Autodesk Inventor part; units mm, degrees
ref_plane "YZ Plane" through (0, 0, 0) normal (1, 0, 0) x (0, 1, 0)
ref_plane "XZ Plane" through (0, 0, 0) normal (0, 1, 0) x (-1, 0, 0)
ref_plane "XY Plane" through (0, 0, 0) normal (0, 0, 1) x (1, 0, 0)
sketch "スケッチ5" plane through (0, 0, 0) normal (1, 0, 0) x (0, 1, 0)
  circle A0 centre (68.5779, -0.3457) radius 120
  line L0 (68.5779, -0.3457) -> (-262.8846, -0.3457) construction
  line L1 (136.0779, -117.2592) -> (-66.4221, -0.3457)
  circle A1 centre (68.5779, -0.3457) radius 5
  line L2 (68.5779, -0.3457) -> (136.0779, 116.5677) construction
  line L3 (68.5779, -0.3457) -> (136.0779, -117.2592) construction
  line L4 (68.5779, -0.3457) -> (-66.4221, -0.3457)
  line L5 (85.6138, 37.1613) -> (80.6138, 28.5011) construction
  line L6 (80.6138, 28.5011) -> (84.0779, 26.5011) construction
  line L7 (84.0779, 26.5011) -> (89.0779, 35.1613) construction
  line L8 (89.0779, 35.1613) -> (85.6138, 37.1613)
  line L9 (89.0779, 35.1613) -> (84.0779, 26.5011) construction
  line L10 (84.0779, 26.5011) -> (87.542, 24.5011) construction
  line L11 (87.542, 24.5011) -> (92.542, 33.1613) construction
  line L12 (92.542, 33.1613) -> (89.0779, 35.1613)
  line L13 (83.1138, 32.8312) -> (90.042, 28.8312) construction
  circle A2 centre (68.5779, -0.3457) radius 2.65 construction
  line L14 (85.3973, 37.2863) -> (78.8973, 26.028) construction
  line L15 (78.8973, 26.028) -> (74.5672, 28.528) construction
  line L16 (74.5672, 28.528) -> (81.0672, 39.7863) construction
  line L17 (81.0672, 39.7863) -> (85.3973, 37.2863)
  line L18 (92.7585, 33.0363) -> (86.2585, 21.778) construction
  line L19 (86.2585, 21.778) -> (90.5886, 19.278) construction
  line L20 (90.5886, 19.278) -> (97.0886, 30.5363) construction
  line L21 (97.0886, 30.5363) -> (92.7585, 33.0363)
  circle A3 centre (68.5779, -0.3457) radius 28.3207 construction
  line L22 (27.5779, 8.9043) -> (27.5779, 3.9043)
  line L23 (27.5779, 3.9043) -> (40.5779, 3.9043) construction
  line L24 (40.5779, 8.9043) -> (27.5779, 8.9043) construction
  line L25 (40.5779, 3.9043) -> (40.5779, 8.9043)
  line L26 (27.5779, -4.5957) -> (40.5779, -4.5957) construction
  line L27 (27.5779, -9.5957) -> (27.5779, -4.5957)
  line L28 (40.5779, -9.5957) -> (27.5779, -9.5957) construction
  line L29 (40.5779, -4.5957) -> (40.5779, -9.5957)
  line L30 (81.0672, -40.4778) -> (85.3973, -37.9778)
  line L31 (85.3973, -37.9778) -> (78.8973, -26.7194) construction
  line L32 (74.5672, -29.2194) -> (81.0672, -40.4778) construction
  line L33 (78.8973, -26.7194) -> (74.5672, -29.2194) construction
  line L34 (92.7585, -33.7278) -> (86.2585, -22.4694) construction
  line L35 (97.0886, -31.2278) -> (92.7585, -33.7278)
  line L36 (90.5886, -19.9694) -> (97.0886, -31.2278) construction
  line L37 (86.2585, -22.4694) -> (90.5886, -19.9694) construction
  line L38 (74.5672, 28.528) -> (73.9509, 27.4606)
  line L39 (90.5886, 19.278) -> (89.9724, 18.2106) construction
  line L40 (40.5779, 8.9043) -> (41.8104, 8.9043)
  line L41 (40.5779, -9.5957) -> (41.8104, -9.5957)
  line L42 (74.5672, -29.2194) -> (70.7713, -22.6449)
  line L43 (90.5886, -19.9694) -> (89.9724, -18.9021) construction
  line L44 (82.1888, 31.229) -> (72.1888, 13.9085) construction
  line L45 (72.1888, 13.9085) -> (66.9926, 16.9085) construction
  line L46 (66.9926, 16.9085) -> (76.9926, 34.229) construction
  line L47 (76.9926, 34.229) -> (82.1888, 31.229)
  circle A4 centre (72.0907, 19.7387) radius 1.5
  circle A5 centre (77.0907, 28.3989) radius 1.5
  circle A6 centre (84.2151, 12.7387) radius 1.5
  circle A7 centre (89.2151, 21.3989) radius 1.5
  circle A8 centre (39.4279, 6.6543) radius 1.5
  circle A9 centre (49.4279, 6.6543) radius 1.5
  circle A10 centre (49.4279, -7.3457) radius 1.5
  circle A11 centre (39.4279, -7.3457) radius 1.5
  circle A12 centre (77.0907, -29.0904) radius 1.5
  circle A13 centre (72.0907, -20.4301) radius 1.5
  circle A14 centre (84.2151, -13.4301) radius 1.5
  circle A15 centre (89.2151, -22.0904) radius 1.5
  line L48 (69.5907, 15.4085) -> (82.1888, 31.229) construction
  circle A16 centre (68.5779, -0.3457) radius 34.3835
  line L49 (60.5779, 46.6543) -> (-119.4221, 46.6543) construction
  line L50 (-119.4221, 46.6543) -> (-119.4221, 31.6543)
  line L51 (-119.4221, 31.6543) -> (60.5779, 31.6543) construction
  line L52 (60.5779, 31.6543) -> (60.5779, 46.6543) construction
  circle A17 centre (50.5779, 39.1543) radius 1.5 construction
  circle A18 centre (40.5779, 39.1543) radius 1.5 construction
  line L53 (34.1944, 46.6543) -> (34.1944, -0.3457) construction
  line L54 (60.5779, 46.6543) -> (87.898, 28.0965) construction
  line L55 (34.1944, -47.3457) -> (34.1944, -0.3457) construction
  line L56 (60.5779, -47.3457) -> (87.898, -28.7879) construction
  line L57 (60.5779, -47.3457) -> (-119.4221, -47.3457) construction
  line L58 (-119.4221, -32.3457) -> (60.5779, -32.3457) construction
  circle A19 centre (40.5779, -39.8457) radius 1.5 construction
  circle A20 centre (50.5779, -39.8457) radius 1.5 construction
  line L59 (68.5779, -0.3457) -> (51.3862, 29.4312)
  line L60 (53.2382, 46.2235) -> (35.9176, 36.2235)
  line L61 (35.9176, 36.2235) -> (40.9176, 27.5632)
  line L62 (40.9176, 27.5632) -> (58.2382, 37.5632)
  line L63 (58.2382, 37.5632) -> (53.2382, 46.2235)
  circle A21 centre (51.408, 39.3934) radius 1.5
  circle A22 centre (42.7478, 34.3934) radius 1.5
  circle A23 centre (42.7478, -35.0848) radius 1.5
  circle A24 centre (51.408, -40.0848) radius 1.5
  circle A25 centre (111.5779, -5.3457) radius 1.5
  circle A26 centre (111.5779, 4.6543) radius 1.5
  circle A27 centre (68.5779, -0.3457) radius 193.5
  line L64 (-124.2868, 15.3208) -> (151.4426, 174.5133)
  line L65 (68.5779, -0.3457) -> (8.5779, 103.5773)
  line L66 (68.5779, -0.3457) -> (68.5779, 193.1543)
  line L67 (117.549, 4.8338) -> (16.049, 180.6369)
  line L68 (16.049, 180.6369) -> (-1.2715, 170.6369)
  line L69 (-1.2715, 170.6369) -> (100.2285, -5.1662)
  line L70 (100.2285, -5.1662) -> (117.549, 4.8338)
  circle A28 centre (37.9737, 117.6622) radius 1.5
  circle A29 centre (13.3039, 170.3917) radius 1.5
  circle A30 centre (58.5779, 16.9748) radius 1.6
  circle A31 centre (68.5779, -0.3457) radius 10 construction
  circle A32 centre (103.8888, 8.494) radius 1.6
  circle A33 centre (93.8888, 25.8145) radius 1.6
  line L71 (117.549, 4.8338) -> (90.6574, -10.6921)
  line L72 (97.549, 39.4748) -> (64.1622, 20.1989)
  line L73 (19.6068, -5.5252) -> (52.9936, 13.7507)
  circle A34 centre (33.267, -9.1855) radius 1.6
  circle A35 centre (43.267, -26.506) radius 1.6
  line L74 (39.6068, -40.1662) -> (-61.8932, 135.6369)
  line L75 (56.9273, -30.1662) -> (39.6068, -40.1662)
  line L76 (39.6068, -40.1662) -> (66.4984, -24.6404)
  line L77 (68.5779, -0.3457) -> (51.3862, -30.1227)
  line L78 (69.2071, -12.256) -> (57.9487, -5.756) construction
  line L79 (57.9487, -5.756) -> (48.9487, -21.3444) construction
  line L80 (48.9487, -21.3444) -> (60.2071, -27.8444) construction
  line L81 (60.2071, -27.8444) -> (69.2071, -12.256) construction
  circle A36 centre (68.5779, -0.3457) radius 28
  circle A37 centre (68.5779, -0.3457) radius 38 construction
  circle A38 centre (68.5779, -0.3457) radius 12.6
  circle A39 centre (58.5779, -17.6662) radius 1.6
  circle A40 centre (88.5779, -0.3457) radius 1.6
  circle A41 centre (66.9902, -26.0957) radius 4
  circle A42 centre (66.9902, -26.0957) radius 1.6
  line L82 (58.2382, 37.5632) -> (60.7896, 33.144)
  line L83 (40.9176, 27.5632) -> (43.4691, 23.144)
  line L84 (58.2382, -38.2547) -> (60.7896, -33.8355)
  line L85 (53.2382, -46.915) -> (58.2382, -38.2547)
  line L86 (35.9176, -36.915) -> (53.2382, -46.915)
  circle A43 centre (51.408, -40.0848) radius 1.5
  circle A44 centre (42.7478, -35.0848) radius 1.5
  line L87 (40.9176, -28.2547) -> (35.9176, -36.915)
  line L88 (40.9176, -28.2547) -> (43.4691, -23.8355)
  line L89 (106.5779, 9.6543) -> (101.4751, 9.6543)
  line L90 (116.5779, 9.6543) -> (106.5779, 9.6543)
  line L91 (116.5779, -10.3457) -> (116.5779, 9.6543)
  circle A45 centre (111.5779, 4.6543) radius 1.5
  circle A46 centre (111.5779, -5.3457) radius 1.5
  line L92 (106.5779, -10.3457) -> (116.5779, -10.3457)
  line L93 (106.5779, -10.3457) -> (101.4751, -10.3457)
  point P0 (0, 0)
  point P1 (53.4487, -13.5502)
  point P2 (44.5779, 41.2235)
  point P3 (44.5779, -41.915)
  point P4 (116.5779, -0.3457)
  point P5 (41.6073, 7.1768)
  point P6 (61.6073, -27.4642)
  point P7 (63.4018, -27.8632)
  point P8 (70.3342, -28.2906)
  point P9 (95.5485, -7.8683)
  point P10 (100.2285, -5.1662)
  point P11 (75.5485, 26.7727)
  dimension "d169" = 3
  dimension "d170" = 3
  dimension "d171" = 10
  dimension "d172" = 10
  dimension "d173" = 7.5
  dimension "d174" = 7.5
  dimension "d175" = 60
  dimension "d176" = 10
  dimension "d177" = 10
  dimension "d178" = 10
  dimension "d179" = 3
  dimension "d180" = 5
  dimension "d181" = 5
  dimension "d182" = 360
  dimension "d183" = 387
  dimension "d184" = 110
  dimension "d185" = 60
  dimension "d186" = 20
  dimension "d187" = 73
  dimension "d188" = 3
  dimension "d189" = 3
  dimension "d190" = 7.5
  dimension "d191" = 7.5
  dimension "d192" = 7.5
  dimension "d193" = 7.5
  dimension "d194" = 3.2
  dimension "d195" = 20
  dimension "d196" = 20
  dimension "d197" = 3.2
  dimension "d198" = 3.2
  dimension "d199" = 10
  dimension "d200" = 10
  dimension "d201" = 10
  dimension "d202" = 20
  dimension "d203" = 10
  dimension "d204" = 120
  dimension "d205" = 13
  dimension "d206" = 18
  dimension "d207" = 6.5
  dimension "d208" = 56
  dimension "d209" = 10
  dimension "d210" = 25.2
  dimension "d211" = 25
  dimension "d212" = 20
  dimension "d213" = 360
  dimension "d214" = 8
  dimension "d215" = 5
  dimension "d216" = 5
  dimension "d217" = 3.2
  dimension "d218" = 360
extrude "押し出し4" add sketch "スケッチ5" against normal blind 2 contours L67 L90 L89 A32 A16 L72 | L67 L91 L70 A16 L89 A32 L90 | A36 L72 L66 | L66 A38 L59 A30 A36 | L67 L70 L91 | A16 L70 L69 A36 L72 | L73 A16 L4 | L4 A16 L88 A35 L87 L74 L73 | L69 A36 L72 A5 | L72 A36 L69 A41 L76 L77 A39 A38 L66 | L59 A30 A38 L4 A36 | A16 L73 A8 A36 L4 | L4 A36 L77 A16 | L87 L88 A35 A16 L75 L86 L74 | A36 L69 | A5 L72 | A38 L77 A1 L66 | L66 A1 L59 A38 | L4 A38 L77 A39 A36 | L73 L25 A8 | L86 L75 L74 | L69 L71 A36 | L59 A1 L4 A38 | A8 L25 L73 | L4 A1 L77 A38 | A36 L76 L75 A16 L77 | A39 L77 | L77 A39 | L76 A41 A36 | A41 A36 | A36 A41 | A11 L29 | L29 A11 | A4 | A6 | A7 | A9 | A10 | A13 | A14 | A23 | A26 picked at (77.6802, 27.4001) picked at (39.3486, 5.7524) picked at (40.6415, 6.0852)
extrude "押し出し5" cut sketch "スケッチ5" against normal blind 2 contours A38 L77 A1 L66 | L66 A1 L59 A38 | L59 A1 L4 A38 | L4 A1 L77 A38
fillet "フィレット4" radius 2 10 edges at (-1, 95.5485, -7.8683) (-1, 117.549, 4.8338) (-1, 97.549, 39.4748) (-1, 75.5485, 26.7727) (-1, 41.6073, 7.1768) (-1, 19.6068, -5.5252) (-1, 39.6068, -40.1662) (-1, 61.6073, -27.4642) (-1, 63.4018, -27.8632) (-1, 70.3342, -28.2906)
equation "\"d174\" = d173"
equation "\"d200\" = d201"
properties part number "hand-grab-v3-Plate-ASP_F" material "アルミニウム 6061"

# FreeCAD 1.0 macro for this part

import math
import FreeCAD as App
import Part
import Sketcher

V = App.Vector
Q = App.Units.Quantity


def edges_at(feature, points):
    """Names of the edges that pass closest to the given points."""
    edges = feature.Shape.Edges
    near = lambda p: min(range(len(edges)), key=lambda i: edges[i].distToShape(Part.Vertex(*p))[0])
    return sorted({f"Edge{near(p) + 1}" for p in points})

doc = App.newDocument("Part")
params = doc.addObject("Spreadsheet::Sheet", "Params")
for row, (alias, value) in enumerate([
    ("sketch1_diameter", "10 mm"),
    ("sketch1_radius", "28 mm"),
    ("sketch1_radius2", "4 mm"),
    ("sketch1_diameter2", "3.2 mm"),
    ("sketch1_length", "20 mm"),
    ("pad1_length", "2 mm"),
    ("sketch2_diameter", "10 mm"),
    ("sketch2_diameter2", "25.2 mm"),
    ("pocket1_length", "2 mm"),
    ("fillet_radius", "2 mm"),
], start=1):
    params.set(f"A{row}", alias)
    params.set(f"B{row}", "=" + value)
    params.setAlias(f"B{row}", alias)

body = doc.addObject("PartDesign::Body", "Body")

sketch1 = doc.addObject("Sketcher::SketchObject", "Sketch")
body.addObject(sketch1)
sketch1.AttachmentSupport = (doc.YZ_Plane, [""])
sketch1.MapMode = "FlatFace"
sketch1.addGeometry(Part.LineSegment(V(97.5, 39.5, 0), V(75.5, 26.8, 0)), False)
sketch1.addGeometry(Part.ArcOfCircle(Part.Circle(V(68.6, -0.3, 0), V(0, 0, 1), 28), math.radians(76), math.radians(164)), False)
sketch1.addGeometry(Part.LineSegment(V(41.6, 7.2, 0), V(19.6, -5.5, 0)), False)
sketch1.addGeometry(Part.LineSegment(V(19.6, -5.5, 0), V(39.6, -40.2, 0)), False)
sketch1.addGeometry(Part.LineSegment(V(39.6, -40.2, 0), V(56.9, -30.2, 0)), False)
sketch1.addGeometry(Part.LineSegment(V(56.9, -30.2, 0), V(61.6, -27.5, 0)), False)
sketch1.addGeometry(Part.ArcOfCircle(Part.Circle(V(68.6, -0.3, 0), V(0, 0, 1), 28), math.radians(-104.42), math.radians(-100.65)), False)
sketch1.addGeometry(Part.ArcOfCircle(Part.Circle(V(67, -26.1, 0), V(0, 0, 1), 4), math.radians(-154), math.radians(-33)), False)
sketch1.addGeometry(Part.ArcOfCircle(Part.Circle(V(68.6, -0.3, 0), V(0, 0, 1), 28), math.radians(-86), math.radians(-16)), False)
sketch1.addGeometry(Part.LineSegment(V(95.5, -7.9, 0), V(100.2, -5.2, 0)), False)
sketch1.addGeometry(Part.LineSegment(V(100.2, -5.2, 0), V(117.5, 4.8, 0)), False)
sketch1.addGeometry(Part.LineSegment(V(117.5, 4.8, 0), V(97.5, 39.5, 0)), False)
sketch1.addGeometry(Part.Circle(V(103.9, 8.5, 0), V(0, 0, 1), 1.6), False)
sketch1.addGeometry(Part.Circle(V(93.9, 25.8, 0), V(0, 0, 1), 1.6), False)
sketch1.addGeometry(Part.Circle(V(88.6, -0.3, 0), V(0, 0, 1), 1.6), False)
sketch1.addGeometry(Part.Circle(V(67, -26.1, 0), V(0, 0, 1), 1.6), False)
sketch1.addGeometry(Part.Circle(V(68.6, -0.3, 0), V(0, 0, 1), 5), False)
sketch1.addGeometry(Part.Circle(V(58.6, 17, 0), V(0, 0, 1), 1.6), False)
sketch1.addGeometry(Part.Circle(V(43.3, -26.5, 0), V(0, 0, 1), 1.6), False)
sketch1.addGeometry(Part.Circle(V(33.3, -9.2, 0), V(0, 0, 1), 1.6), False)
sketch1.addConstraint(Sketcher.Constraint("Coincident", 0, 2, 1, 1))
sketch1.addConstraint(Sketcher.Constraint("Coincident", 1, 2, 2, 1))
sketch1.addConstraint(Sketcher.Constraint("Coincident", 2, 2, 3, 1))
sketch1.addConstraint(Sketcher.Constraint("Coincident", 3, 2, 4, 1))
sketch1.addConstraint(Sketcher.Constraint("Coincident", 4, 2, 5, 1))
sketch1.addConstraint(Sketcher.Constraint("Coincident", 5, 2, 6, 1))
sketch1.addConstraint(Sketcher.Constraint("Coincident", 6, 2, 7, 1))
sketch1.addConstraint(Sketcher.Constraint("Coincident", 7, 2, 8, 1))
sketch1.addConstraint(Sketcher.Constraint("Coincident", 8, 2, 9, 1))
sketch1.addConstraint(Sketcher.Constraint("Coincident", 9, 2, 10, 1))
sketch1.addConstraint(Sketcher.Constraint("Coincident", 10, 2, 11, 1))
sketch1.addConstraint(Sketcher.Constraint("Coincident", 11, 2, 0, 1))
sketch1.addConstraint(Sketcher.Constraint("Coincident", 6, 3, 1, 3))
sketch1.addConstraint(Sketcher.Constraint("Coincident", 8, 3, 1, 3))
sketch1.addConstraint(Sketcher.Constraint("Coincident", 15, 3, 7, 3))
sketch1.addConstraint(Sketcher.Constraint("Coincident", 16, 3, 1, 3))
sketch1.addConstraint(Sketcher.Constraint("Equal", 1, 6))
sketch1.addConstraint(Sketcher.Constraint("Equal", 6, 8))
sketch1.addConstraint(Sketcher.Constraint("Equal", 12, 13))
sketch1.addConstraint(Sketcher.Constraint("Equal", 13, 14))
sketch1.addConstraint(Sketcher.Constraint("Equal", 14, 15))
sketch1.addConstraint(Sketcher.Constraint("Equal", 15, 17))
sketch1.addConstraint(Sketcher.Constraint("Equal", 17, 18))
sketch1.addConstraint(Sketcher.Constraint("Equal", 18, 19))
sketch1.addConstraint(Sketcher.Constraint("Parallel", 0, 2))
sketch1.addConstraint(Sketcher.Constraint("Perpendicular", 2, 3))
sketch1.addConstraint(Sketcher.Constraint("Perpendicular", 3, 4))
sketch1.addConstraint(Sketcher.Constraint("Parallel", 4, 5))
sketch1.addConstraint(Sketcher.Constraint("Parallel", 5, 9))
sketch1.addConstraint(Sketcher.Constraint("Parallel", 9, 10))
sketch1.addConstraint(Sketcher.Constraint("Perpendicular", 10, 11))
sketch1.addConstraint(Sketcher.Constraint("Horizontal", 8, 3, 14, 3))
sketch1.addConstraint(Sketcher.Constraint("Equal", 0, 2))
sketch1.addConstraint(Sketcher.Constraint("Equal", 5, 9))
sketch1.addConstraint(Sketcher.Constraint("Equal", 4, 10))
sketch1.addConstraint(Sketcher.Constraint("Equal", 3, 11))
sketch1.addConstraint(Sketcher.Constraint("Diameter", 16, 10.0))
sketch1.addConstraint(Sketcher.Constraint("Radius", 1, 28.0))
sketch1.addConstraint(Sketcher.Constraint("Radius", 7, 4.0))
sketch1.addConstraint(Sketcher.Constraint("Diameter", 12, 3.2))
sketch1.addConstraint(Sketcher.Constraint("Angle", 3, Q("-60 deg")))
sketch1.addConstraint(Sketcher.Constraint("Distance", 4, 20.0))
sketch1.addConstraint(Sketcher.Constraint("DistanceX", 13, 3, 12, 3, 10.0))
sketch1.addConstraint(Sketcher.Constraint("DistanceX", 1, 3, 14, 3, 20.0))
sketch1.addConstraint(Sketcher.Constraint("DistanceX", 17, 3, 1, 3, 10.0))
sketch1.addConstraint(Sketcher.Constraint("DistanceX", 19, 3, 18, 3, 10.0))
sketch1.addConstraint(Sketcher.Constraint("DistanceX", 2, 2, 3, 2, 20.0))
sketch1.addConstraint(Sketcher.Constraint("DistanceY", 2, 2, 17, 3, 22.5))
sketch1.addConstraint(Sketcher.Constraint("DistanceY", 7, 3, 1, 3, 25.75))
sketch1.addConstraint(Sketcher.Constraint("DistanceX", 8, 2, 9, 2, 4.68))
sketch1.addConstraint(Sketcher.Constraint("Distance", 0, 25.404))
sketch1.addConstraint(Sketcher.Constraint("DistanceX", -1, 1, 1, 3, 68.578))
sketch1.addConstraint(Sketcher.Constraint("DistanceY", -1, 1, 12, 3, 8.494))
sketch1.addConstraint(Sketcher.Constraint("DistanceX", -1, 1, 18, 3, 43.267))
sketch1.addConstraint(Sketcher.Constraint("DistanceY", 18, 3, -1, 1, 26.506))
sketch1.addConstraint(Sketcher.Constraint("DistanceX", 1, 3, 12, 3, 35.311))
sketch1.addConstraint(Sketcher.Constraint("DistanceX", 4, 2, 7, 3, 10.063))
sketch1.addConstraint(Sketcher.Constraint("DistanceY", 1, 3, -1, 1, 0.3457))
sketch1.addConstraint(Sketcher.Constraint("DistanceY", -1, 1, 13, 3, 25.8145))
sketch1.addConstraint(Sketcher.Constraint("DistanceY", 19, 3, -1, 1, 9.1855))
sketch1.setExpression("Constraints[36]", "Params.sketch1_diameter")
sketch1.setExpression("Constraints[37]", "Params.sketch1_radius")
sketch1.setExpression("Constraints[38]", "Params.sketch1_radius2")
sketch1.setExpression("Constraints[39]", "Params.sketch1_diameter2")
sketch1.setExpression("Constraints[41]", "Params.sketch1_length")
pad1 = doc.addObject("PartDesign::Pad", "Pad")
body.addObject(pad1)
pad1.Profile = sketch1
pad1.setExpression("Length", "Params.pad1_length")
pad1.Reversed = True

sketch2 = doc.addObject("Sketcher::SketchObject", "Sketch001")
body.addObject(sketch2)
sketch2.AttachmentSupport = (doc.YZ_Plane, [""])
sketch2.MapMode = "FlatFace"
sketch2.addGeometry(Part.Circle(V(69, 0, 0), V(0, 0, 1), 13), False)
sketch2.addGeometry(Part.Circle(V(69, 0, 0), V(0, 0, 1), 5), False)
sketch2.addConstraint(Sketcher.Constraint("Coincident", 1, 3, 0, 3))
sketch2.addConstraint(Sketcher.Constraint("Diameter", 1, 10.0))
sketch2.addConstraint(Sketcher.Constraint("Diameter", 0, 25.2))
sketch2.addConstraint(Sketcher.Constraint("DistanceX", -1, 1, 0, 3, 68.578))
sketch2.addConstraint(Sketcher.Constraint("DistanceY", 0, 3, -1, 1, 0.3457))
sketch2.setExpression("Constraints[1]", "Params.sketch2_diameter")
sketch2.setExpression("Constraints[2]", "Params.sketch2_diameter2")
pocket1 = doc.addObject("PartDesign::Pocket", "Pocket")
body.addObject(pocket1)
pocket1.Profile = sketch2
pocket1.setExpression("Length", "Params.pocket1_length")
doc.recompute()

fillet = doc.addObject("PartDesign::Fillet", "Fillet")
body.addObject(fillet)
fillet.Base = (pocket1, edges_at(pocket1, [
    (-1, 95.549, -7.868),
    (-1, 117.549, 4.834),
    (-1, 97.549, 39.475),
    (-1, 75.549, 26.773),
    (-1, 41.607, 7.177),
    (-1, 19.607, -5.525),
    (-1, 39.607, -40.166),
    (-1, 61.607, -27.464),
    (-1, 63.402, -27.863),
    (-1, 70.334, -28.291),
]))
fillet.setExpression("Radius", "Params.fillet_radius")

doc.recompute()
